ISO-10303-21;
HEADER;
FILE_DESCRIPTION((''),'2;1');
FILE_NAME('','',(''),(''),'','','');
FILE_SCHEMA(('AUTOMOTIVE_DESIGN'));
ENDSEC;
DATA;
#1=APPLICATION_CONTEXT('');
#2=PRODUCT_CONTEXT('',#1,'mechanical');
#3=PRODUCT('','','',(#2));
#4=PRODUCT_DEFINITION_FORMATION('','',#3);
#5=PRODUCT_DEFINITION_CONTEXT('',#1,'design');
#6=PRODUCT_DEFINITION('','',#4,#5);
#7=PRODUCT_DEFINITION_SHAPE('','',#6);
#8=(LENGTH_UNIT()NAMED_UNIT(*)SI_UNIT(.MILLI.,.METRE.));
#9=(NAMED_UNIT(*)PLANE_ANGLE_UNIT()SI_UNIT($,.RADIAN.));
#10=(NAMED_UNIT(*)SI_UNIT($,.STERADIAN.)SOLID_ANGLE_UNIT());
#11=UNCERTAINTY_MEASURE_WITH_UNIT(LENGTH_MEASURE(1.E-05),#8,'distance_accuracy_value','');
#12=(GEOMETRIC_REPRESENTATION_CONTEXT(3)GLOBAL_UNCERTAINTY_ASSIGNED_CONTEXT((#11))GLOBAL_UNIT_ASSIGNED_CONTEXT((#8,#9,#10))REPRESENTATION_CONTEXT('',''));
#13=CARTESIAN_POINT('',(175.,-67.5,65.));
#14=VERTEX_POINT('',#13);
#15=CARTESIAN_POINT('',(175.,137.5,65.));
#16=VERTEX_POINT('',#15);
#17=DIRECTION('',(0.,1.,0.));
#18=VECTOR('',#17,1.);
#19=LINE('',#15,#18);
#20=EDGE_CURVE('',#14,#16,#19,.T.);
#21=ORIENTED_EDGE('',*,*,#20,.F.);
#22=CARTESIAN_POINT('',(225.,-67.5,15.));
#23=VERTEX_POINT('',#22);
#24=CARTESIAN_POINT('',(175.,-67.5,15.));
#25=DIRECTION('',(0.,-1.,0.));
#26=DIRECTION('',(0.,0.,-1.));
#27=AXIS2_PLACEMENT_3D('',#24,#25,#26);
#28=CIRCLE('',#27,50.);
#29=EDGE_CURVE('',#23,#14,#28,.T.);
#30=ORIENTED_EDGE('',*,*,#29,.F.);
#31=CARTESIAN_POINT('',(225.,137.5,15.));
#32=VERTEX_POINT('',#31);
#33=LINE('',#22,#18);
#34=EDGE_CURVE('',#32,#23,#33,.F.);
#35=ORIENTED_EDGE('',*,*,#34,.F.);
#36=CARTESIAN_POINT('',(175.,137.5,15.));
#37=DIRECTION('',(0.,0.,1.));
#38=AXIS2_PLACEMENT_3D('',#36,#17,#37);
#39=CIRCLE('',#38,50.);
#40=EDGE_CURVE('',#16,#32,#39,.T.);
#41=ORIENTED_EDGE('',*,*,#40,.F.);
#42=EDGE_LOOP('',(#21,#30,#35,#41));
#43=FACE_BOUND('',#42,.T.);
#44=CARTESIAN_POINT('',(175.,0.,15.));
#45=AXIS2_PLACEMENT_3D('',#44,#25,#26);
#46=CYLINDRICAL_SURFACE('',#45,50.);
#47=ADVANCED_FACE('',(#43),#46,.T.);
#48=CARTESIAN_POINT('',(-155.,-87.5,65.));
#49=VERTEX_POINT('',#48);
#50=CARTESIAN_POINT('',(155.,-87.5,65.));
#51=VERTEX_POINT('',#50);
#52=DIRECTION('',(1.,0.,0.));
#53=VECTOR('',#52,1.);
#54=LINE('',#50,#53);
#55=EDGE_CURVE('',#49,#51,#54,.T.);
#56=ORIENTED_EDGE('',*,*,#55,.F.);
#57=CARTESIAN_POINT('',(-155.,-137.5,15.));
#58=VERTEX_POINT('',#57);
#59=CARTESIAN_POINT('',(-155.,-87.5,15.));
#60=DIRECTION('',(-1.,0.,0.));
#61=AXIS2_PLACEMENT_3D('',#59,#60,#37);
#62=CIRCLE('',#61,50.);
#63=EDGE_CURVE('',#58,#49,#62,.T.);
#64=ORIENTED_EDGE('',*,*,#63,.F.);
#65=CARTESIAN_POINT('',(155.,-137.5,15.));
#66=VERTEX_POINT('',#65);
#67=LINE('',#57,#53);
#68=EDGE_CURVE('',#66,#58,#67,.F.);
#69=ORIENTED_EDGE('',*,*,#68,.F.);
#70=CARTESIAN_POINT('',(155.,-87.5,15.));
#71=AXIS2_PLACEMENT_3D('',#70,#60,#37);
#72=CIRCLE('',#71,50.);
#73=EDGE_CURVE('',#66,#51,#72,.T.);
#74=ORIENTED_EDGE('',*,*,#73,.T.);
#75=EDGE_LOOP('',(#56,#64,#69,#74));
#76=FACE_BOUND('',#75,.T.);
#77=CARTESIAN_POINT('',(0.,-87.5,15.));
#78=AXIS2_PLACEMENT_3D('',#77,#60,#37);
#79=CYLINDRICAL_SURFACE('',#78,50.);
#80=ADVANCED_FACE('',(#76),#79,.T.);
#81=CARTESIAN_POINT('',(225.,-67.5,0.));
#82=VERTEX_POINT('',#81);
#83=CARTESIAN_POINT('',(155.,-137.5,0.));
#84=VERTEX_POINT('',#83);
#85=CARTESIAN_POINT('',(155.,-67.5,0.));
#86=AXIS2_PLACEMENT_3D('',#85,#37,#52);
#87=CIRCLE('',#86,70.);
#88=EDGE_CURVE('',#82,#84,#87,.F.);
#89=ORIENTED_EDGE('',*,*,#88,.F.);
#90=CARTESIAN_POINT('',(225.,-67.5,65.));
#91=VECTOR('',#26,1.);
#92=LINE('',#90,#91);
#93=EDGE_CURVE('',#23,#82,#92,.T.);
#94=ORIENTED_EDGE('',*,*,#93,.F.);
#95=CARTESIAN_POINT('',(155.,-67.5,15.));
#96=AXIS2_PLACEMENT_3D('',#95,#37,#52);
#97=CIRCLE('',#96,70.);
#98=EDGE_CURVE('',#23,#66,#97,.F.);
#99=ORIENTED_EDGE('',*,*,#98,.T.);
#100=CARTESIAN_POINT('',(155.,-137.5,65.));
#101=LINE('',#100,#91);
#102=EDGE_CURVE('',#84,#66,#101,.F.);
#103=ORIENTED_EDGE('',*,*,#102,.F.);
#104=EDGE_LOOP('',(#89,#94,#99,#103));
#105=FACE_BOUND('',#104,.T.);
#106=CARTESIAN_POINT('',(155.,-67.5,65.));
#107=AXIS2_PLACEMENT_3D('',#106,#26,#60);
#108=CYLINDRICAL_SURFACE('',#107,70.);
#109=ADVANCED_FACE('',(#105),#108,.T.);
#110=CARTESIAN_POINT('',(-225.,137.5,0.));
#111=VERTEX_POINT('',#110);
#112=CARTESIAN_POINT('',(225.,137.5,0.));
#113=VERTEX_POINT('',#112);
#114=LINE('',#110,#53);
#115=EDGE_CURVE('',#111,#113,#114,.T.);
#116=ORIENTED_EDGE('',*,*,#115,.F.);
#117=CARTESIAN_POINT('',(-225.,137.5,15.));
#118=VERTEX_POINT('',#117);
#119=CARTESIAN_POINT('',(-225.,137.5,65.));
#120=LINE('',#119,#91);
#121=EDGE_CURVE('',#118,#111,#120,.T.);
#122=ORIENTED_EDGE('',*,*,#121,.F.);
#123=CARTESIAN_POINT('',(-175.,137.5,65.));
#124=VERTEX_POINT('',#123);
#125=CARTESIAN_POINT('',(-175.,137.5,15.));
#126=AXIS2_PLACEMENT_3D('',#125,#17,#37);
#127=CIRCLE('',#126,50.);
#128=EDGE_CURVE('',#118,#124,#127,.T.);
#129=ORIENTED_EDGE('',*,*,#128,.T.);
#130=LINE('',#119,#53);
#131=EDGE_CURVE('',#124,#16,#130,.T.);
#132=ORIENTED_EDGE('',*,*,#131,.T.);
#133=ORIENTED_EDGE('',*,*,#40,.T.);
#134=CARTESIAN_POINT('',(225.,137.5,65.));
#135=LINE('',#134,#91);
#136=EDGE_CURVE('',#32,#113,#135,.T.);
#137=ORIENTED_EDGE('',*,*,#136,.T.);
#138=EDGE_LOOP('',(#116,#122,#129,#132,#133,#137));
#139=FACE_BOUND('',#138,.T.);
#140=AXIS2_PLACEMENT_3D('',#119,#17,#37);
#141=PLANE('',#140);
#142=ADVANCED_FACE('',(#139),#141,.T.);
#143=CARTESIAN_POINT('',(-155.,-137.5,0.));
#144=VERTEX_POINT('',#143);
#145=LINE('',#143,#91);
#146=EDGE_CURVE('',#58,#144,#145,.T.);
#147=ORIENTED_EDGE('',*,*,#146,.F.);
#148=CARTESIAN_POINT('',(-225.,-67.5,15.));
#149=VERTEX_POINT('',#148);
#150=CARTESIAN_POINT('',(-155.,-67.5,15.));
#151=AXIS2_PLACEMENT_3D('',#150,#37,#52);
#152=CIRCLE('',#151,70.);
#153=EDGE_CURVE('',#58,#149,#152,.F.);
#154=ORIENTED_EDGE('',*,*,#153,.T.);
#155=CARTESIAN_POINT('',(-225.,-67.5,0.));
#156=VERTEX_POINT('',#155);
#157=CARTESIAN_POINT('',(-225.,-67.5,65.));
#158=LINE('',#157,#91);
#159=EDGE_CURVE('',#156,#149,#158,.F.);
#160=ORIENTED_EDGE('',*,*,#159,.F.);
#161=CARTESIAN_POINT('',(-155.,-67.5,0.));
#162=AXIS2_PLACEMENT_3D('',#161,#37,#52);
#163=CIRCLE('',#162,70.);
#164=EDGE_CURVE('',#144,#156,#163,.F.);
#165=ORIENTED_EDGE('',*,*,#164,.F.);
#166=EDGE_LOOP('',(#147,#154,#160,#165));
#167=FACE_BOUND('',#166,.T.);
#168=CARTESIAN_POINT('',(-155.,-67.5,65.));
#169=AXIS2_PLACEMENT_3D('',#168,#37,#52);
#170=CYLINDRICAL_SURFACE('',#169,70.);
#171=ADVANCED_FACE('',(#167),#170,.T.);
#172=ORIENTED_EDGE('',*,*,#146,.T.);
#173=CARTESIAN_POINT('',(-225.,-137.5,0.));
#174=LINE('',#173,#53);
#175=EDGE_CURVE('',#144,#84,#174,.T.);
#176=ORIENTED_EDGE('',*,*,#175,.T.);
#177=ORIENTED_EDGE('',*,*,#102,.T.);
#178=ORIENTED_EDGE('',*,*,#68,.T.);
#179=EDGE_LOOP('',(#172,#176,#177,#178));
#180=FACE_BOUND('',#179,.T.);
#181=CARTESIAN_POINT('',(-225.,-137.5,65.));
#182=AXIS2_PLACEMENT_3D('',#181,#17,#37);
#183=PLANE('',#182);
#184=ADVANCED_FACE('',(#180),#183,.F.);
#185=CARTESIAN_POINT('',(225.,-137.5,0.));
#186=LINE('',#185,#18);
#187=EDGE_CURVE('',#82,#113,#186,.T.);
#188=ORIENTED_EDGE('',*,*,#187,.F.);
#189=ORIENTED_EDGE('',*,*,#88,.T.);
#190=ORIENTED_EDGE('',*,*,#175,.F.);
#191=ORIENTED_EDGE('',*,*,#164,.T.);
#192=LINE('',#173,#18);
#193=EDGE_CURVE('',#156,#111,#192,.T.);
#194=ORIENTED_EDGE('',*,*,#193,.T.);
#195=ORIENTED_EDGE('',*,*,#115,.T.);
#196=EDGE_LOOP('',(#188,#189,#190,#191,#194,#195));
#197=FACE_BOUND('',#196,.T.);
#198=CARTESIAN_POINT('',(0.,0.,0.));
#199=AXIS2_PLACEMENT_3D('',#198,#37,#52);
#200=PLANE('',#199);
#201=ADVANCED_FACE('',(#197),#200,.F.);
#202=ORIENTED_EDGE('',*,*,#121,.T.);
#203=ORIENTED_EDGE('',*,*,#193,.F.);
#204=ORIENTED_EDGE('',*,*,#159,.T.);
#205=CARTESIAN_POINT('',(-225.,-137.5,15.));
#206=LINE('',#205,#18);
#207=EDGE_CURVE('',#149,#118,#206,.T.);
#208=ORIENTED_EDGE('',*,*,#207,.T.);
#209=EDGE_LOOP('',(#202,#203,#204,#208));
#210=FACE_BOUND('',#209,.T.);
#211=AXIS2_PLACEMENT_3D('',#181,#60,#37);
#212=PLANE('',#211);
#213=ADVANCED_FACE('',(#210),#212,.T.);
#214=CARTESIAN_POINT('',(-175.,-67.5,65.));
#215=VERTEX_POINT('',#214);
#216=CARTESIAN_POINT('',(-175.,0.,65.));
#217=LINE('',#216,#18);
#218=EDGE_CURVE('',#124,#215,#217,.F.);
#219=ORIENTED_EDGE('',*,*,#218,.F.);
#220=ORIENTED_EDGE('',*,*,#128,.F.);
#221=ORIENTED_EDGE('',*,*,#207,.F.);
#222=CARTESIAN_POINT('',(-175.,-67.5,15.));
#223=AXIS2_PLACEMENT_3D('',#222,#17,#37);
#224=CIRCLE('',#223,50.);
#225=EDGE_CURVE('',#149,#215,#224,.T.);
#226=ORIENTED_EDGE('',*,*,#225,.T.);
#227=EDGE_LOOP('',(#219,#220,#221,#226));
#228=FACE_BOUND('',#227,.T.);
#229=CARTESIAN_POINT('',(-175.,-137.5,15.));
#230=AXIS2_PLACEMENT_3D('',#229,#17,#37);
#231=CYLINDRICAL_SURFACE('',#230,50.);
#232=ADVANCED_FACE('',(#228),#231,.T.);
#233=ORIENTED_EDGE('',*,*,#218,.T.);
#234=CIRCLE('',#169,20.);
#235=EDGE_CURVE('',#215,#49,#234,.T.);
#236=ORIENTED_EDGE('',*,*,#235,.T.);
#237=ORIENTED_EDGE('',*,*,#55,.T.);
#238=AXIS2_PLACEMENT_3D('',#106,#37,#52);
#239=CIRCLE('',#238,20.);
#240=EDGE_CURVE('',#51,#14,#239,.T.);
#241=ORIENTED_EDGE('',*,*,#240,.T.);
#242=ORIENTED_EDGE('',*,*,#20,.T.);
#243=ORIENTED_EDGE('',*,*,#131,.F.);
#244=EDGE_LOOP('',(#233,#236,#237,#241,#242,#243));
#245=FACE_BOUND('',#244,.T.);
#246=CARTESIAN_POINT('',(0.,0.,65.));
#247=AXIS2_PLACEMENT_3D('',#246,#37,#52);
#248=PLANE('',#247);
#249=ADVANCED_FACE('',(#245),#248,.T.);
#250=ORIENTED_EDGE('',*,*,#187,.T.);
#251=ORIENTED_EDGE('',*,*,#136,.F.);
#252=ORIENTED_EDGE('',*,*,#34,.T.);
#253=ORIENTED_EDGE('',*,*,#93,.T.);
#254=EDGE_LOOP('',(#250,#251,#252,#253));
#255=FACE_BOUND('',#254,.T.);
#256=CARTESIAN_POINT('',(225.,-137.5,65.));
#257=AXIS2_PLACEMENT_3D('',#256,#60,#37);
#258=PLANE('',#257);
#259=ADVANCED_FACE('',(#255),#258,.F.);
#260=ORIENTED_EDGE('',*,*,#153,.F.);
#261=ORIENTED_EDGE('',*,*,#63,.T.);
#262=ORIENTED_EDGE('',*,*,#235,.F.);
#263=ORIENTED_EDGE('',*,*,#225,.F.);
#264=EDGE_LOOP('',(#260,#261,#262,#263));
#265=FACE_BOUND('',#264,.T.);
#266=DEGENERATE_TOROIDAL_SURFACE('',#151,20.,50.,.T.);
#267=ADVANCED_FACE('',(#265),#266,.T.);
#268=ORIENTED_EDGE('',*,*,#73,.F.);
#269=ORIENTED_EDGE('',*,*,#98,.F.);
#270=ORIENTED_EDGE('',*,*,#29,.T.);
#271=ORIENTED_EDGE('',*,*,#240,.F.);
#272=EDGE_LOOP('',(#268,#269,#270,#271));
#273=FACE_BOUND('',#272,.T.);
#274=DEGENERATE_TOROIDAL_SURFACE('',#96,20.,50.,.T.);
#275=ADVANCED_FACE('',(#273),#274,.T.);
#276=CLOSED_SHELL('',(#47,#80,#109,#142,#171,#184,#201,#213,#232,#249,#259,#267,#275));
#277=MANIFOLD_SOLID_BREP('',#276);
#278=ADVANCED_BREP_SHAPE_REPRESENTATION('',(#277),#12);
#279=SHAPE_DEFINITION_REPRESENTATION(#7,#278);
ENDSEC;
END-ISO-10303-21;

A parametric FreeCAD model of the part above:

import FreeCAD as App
import Part
import Sketcher
Q = App.Units.Quantity


def edges_at(feature, points):
    """Names of the edges that pass closest to the given points."""
    edges = feature.Shape.Edges
    near = lambda p: min(range(len(edges)), key=lambda i: edges[i].distToShape(Part.Vertex(*p))[0])
    return sorted({f"Edge{near(p) + 1}" for p in points})

doc = App.newDocument("Part")
body = doc.addObject("PartDesign::Body", "Body")

# Sketch on XY plane
sketch1 = body.newObject("Sketcher::SketchObject", "Sketch")
sketch1.AttachmentSupport = (doc.getObject("XY_Plane"), [""])
sketch1.MapMode = "FlatFace"
sketch1.addGeometry([
    Part.LineSegment(App.Vector(-225, 137.5, 0), App.Vector(-225, -137.5, 0)),
    Part.LineSegment(App.Vector(-225, -137.5, 0), App.Vector(225, -137.5, 0)),
    Part.LineSegment(App.Vector(225, -137.5, 0), App.Vector(225, 137.5, 0)),
    Part.LineSegment(App.Vector(225, 137.5, 0), App.Vector(-225, 137.5, 0)),
], False)
sketch1.addConstraint([
    Sketcher.Constraint("Coincident", 0, 2, 1, 1),
    Sketcher.Constraint("Coincident", 1, 2, 2, 1),
    Sketcher.Constraint("Coincident", 2, 2, 3, 1),
    Sketcher.Constraint("Coincident", 3, 2, 0, 1),
    Sketcher.Constraint("Vertical", 0),
    Sketcher.Constraint("Horizontal", 1),
    Sketcher.Constraint("Vertical", 2),
    Sketcher.Constraint("Horizontal", 3),
    Sketcher.Constraint("Symmetric", 0, 2, 2, 2, -1, 1),
    Sketcher.Constraint("DistanceX", 1, 1, 1, 2, Q("450 mm")),
    Sketcher.Constraint("DistanceY", 0, 2, 0, 1, Q("275 mm")),
])
pad1 = body.newObject("PartDesign::Pad", "Pad")
pad1.Profile = sketch1
pad1.Length = 65
doc.recompute()

fillet = body.newObject("PartDesign::Fillet", "Fillet")
fillet.Base = (pad1, edges_at(pad1, [(-225, -137.5, 32.5)]))
fillet.Radius = 70
doc.recompute()

fillet2 = body.newObject("PartDesign::Fillet", "Fillet001")
fillet2.Base = (fillet, edges_at(fillet, [(225, -137.5, 32.5)]))
fillet2.Radius = 70
doc.recompute()

fillet3 = body.newObject("PartDesign::Fillet", "Fillet002")
fillet3.Base = (fillet2, edges_at(fillet2, [
    (0, -137.5, 65),
    (-225, 35, 65),
    (-204.497, -116.997, 65),
    (225, 35, 65),
    (204.497, -116.997, 65),
]))
fillet3.Radius = 50

doc.recompute()
